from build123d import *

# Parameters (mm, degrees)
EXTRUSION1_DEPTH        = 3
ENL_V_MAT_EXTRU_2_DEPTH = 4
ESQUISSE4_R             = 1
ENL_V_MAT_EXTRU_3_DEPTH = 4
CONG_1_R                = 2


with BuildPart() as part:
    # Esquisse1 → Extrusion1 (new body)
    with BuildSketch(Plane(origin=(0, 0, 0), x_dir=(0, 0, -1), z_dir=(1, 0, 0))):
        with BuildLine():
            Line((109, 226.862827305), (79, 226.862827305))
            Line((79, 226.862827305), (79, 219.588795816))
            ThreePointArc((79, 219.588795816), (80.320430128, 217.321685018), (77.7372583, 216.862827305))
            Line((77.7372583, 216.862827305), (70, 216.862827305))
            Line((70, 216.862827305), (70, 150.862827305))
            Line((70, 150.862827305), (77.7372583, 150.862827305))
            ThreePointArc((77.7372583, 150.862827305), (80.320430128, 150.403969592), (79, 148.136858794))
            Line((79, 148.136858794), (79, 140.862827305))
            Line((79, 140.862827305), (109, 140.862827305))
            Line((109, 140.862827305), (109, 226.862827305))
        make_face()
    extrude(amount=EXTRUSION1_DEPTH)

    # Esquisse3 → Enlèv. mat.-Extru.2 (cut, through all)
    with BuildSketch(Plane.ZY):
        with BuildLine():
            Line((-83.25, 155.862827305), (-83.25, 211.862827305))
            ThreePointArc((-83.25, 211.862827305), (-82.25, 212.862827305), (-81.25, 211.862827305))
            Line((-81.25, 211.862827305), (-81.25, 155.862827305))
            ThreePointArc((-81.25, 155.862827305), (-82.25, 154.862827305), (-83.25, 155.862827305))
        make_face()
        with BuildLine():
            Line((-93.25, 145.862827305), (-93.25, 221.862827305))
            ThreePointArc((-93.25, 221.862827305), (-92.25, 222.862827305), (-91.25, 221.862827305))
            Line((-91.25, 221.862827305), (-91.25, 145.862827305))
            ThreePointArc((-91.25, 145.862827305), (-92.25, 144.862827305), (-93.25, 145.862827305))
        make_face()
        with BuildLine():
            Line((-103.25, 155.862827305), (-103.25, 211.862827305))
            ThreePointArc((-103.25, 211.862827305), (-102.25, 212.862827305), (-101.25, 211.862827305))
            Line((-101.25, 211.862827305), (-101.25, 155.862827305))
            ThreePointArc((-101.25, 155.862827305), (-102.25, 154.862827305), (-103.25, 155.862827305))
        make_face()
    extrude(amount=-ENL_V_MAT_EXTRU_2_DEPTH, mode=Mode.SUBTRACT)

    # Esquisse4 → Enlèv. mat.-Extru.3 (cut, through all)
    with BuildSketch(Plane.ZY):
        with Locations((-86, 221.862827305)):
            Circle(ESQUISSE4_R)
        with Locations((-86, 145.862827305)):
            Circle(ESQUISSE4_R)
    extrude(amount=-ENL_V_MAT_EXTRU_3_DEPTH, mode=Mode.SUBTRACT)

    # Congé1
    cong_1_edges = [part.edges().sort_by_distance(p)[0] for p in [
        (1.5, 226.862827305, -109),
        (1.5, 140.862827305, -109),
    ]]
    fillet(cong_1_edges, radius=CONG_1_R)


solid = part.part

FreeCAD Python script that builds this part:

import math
import FreeCAD as App
import Part
import Sketcher
from FreeCAD import Vector
Q = App.Units.Quantity


def edges_at(feature, points):
    """Names of the edges that pass closest to the given points."""
    edges = feature.Shape.Edges
    near = lambda p: min(range(len(edges)), key=lambda i: edges[i].distToShape(Part.Vertex(*p))[0])
    return sorted({f"Edge{near(p) + 1}" for p in points})

doc = App.newDocument("Part")
body = doc.addObject("PartDesign::Body", "Body")

# Sketch on YZ plane
sketch1 = body.newObject("Sketcher::SketchObject", "Sketch")
sketch1.AttachmentSupport = (doc.getObject("YZ_Plane"), [""])
sketch1.MapMode = "FlatFace"
sketch1.addGeometry([
    Part.LineSegment(Vector(226.862827, -109, 0), Vector(226.862827, -79, 0)),  # 0
    Part.LineSegment(Vector(226.862827, -79, 0), Vector(219.588796, -79, 0)),  # 1
    Part.ArcOfCircle(Part.Circle(Vector(217.994198, -78.868629, 0), Vector(0, 0, 1), 1.6), math.radians(135), math.radians(355.290326)),  # 2
    Part.LineSegment(Vector(216.862827, -77.737258, 0), Vector(216.862827, -70, 0)),  # 3
    Part.LineSegment(Vector(216.862827, -70, 0), Vector(150.862827, -70, 0)),  # 4
    Part.LineSegment(Vector(150.862827, -70, 0), Vector(150.862827, -77.737258, 0)),  # 5
    Part.ArcOfCircle(Part.Circle(Vector(149.731456, -78.868629, 0), Vector(0, 0, 1), 1.6), math.radians(-175.290326), math.radians(45)),  # 6
    Part.LineSegment(Vector(148.136859, -79, 0), Vector(140.862827, -79, 0)),  # 7
    Part.LineSegment(Vector(140.862827, -79, 0), Vector(140.862827, -109, 0)),  # 8
    Part.LineSegment(Vector(140.862827, -109, 0), Vector(226.862827, -109, 0)),  # 9
], False)
sketch1.addConstraint([
    Sketcher.Constraint("Coincident", 0, 2, 1, 1),
    Sketcher.Constraint("Coincident", 1, 2, 2, 2),
    Sketcher.Constraint("Coincident", 2, 1, 3, 1),
    Sketcher.Constraint("Coincident", 3, 2, 4, 1),
    Sketcher.Constraint("Coincident", 4, 2, 5, 1),
    Sketcher.Constraint("Coincident", 5, 2, 6, 2),
    Sketcher.Constraint("Coincident", 6, 1, 7, 1),
    Sketcher.Constraint("Coincident", 7, 2, 8, 1),
    Sketcher.Constraint("Coincident", 8, 2, 9, 1),
    Sketcher.Constraint("Coincident", 9, 2, 0, 1),
    Sketcher.Constraint("Vertical", 0),
    Sketcher.Constraint("Horizontal", 1),
    Sketcher.Constraint("Vertical", 3),
    Sketcher.Constraint("Horizontal", 4),
    Sketcher.Constraint("Vertical", 5),
    Sketcher.Constraint("Horizontal", 7),
    Sketcher.Constraint("Vertical", 8),
    Sketcher.Constraint("Horizontal", 9),
    Sketcher.Constraint("Equal", 2, 6),
    Sketcher.Constraint("Horizontal", 2, 3, 6, 3),
    Sketcher.Constraint("Horizontal", 2, 1, 5, 2),
    Sketcher.Constraint("Horizontal", 1, 2, 6, 1),
    Sketcher.Constraint("Equal", 1, 7),
    Sketcher.Constraint("Radius", 2, Q("1.6 mm")),
    Sketcher.Constraint("DistanceX", 4, 2, 4, 1, Q("66 mm")),
    Sketcher.Constraint("DistanceX", 9, 1, 9, 2, Q("86 mm")),
    Sketcher.Constraint("DistanceY", 0, 1, 0, 2, Q("30 mm")),
    Sketcher.Constraint("DistanceY", 0, 2, -1, 1, Q("79 mm")),
    Sketcher.Constraint("DistanceY", 3, 2, -1, 1, Q("70 mm")),
    Sketcher.Constraint("DistanceX", 1, 2, 1, 1, Q("7.274031 mm")),
    Sketcher.Constraint("DistanceY", 3, 1, 3, 2, Q("7.737258 mm")),
    Sketcher.Constraint("DistanceX", -1, 1, 2, 3, Q("217.994198 mm")),
])
pad1 = body.newObject("PartDesign::Pad", "Pad")
pad1.Profile = sketch1
pad1.Length = 3

# Sketch on YZ plane
sketch2 = body.newObject("Sketcher::SketchObject", "Sketch001")
sketch2.AttachmentSupport = (doc.getObject("YZ_Plane"), [""])
sketch2.MapMode = "FlatFace"
sketch2.addGeometry([
    Part.LineSegment(Vector(211.862827, -83.25, 0), Vector(155.862827, -83.25, 0)),  # 0
    Part.ArcOfCircle(Part.Circle(Vector(155.862827, -82.25, 0), Vector(0, 0, 1), 1), math.radians(90), math.radians(270)),  # 1
    Part.LineSegment(Vector(155.862827, -81.25, 0), Vector(211.862827, -81.25, 0)),  # 2
    Part.ArcOfCircle(Part.Circle(Vector(211.862827, -82.25, 0), Vector(0, 0, 1), 1), math.radians(-90), math.radians(90)),  # 3
    Part.LineSegment(Vector(221.862827, -93.25, 0), Vector(145.862827, -93.25, 0)),  # 4
    Part.ArcOfCircle(Part.Circle(Vector(145.862827, -92.25, 0), Vector(0, 0, 1), 1), math.radians(90), math.radians(270)),  # 5
    Part.LineSegment(Vector(145.862827, -91.25, 0), Vector(221.862827, -91.25, 0)),  # 6
    Part.ArcOfCircle(Part.Circle(Vector(221.862827, -92.25, 0), Vector(0, 0, 1), 1), math.radians(-90), math.radians(90)),  # 7
    Part.LineSegment(Vector(211.862827, -103.25, 0), Vector(155.862827, -103.25, 0)),  # 8
    Part.ArcOfCircle(Part.Circle(Vector(155.862827, -102.25, 0), Vector(0, 0, 1), 1), math.radians(90), math.radians(270)),  # 9
    Part.LineSegment(Vector(155.862827, -101.25, 0), Vector(211.862827, -101.25, 0)),  # 10
    Part.ArcOfCircle(Part.Circle(Vector(211.862827, -102.25, 0), Vector(0, 0, 1), 1), math.radians(-90), math.radians(90)),  # 11
], False)
sketch2.addConstraint([
    Sketcher.Constraint("Tangent", 0, 2, 1, 2),
    Sketcher.Constraint("Tangent", 1, 1, 2, 1),
    Sketcher.Constraint("Tangent", 2, 2, 3, 2),
    Sketcher.Constraint("Tangent", 3, 1, 0, 1),
    Sketcher.Constraint("Tangent", 4, 2, 5, 2),
    Sketcher.Constraint("Tangent", 5, 1, 6, 1),
    Sketcher.Constraint("Tangent", 6, 2, 7, 2),
    Sketcher.Constraint("Tangent", 7, 1, 4, 1),
    Sketcher.Constraint("Tangent", 8, 2, 9, 2),
    Sketcher.Constraint("Tangent", 9, 1, 10, 1),
    Sketcher.Constraint("Tangent", 10, 2, 11, 2),
    Sketcher.Constraint("Tangent", 11, 1, 8, 1),
    Sketcher.Constraint("Horizontal", 0),
    Sketcher.Constraint("Horizontal", 2),
    Sketcher.Constraint("Horizontal", 4),
    Sketcher.Constraint("Horizontal", 6),
    Sketcher.Constraint("Horizontal", 8),
    Sketcher.Constraint("Horizontal", 10),
    Sketcher.Constraint("Equal", 3, 5),
    Sketcher.Constraint("Equal", 7, 9),
    Sketcher.Constraint("Vertical", 1, 3, 9, 3),
    Sketcher.Constraint("Vertical", 3, 3, 11, 3),
    Sketcher.Constraint("Radius", 1, Q("1 mm")),
    Sketcher.Constraint("DistanceX", 0, 2, 0, 1, Q("56 mm")),
    Sketcher.Constraint("DistanceX", 4, 2, 4, 1, Q("76 mm")),
    Sketcher.Constraint("DistanceX", 5, 3, 1, 3, Q("10 mm")),
    Sketcher.Constraint("DistanceY", 5, 3, 1, 3, Q("10 mm")),
    Sketcher.Constraint("DistanceY", 9, 3, 5, 3, Q("10 mm")),
    Sketcher.Constraint("DistanceY", 1, 3, -1, 1, Q("82.25 mm")),
    Sketcher.Constraint("DistanceX", -1, 1, 1, 3, Q("155.862827 mm")),
])
pocket1 = body.newObject("PartDesign::Pocket", "Pocket")
pocket1.Profile = sketch2
pocket1.Type = "ThroughAll"
pocket1.Reversed = True

# Sketch on YZ plane
sketch3 = body.newObject("Sketcher::SketchObject", "Sketch002")
sketch3.AttachmentSupport = (doc.getObject("YZ_Plane"), [""])
sketch3.MapMode = "FlatFace"
sketch3.addGeometry([
    Part.Circle(Vector(221.862827, -86, 0), Vector(0, 0, 1), 1),
    Part.Circle(Vector(145.862827, -86, 0), Vector(0, 0, 1), 1),
], False)
sketch3.addConstraint([
    Sketcher.Constraint("Equal", 0, 1),
    Sketcher.Constraint("Horizontal", 0, 3, 1, 3),
    Sketcher.Constraint("Diameter", 0, Q("2 mm")),
    Sketcher.Constraint("DistanceY", 0, 3, -1, 1, Q("86 mm")),
    Sketcher.Constraint("DistanceX", 1, 3, 0, 3, Q("76 mm")),
    Sketcher.Constraint("DistanceX", -1, 1, 0, 3, Q("221.862827 mm")),
])
pocket2 = body.newObject("PartDesign::Pocket", "Pocket001")
pocket2.Profile = sketch3
pocket2.Type = "ThroughAll"
pocket2.Reversed = True
doc.recompute()

fillet = body.newObject("PartDesign::Fillet", "Fillet")
fillet.Base = (pocket2, edges_at(pocket2, [(1.5, 226.863, -109), (1.5, 140.863, -109)]))
fillet.Radius = 2

doc.recompute()
